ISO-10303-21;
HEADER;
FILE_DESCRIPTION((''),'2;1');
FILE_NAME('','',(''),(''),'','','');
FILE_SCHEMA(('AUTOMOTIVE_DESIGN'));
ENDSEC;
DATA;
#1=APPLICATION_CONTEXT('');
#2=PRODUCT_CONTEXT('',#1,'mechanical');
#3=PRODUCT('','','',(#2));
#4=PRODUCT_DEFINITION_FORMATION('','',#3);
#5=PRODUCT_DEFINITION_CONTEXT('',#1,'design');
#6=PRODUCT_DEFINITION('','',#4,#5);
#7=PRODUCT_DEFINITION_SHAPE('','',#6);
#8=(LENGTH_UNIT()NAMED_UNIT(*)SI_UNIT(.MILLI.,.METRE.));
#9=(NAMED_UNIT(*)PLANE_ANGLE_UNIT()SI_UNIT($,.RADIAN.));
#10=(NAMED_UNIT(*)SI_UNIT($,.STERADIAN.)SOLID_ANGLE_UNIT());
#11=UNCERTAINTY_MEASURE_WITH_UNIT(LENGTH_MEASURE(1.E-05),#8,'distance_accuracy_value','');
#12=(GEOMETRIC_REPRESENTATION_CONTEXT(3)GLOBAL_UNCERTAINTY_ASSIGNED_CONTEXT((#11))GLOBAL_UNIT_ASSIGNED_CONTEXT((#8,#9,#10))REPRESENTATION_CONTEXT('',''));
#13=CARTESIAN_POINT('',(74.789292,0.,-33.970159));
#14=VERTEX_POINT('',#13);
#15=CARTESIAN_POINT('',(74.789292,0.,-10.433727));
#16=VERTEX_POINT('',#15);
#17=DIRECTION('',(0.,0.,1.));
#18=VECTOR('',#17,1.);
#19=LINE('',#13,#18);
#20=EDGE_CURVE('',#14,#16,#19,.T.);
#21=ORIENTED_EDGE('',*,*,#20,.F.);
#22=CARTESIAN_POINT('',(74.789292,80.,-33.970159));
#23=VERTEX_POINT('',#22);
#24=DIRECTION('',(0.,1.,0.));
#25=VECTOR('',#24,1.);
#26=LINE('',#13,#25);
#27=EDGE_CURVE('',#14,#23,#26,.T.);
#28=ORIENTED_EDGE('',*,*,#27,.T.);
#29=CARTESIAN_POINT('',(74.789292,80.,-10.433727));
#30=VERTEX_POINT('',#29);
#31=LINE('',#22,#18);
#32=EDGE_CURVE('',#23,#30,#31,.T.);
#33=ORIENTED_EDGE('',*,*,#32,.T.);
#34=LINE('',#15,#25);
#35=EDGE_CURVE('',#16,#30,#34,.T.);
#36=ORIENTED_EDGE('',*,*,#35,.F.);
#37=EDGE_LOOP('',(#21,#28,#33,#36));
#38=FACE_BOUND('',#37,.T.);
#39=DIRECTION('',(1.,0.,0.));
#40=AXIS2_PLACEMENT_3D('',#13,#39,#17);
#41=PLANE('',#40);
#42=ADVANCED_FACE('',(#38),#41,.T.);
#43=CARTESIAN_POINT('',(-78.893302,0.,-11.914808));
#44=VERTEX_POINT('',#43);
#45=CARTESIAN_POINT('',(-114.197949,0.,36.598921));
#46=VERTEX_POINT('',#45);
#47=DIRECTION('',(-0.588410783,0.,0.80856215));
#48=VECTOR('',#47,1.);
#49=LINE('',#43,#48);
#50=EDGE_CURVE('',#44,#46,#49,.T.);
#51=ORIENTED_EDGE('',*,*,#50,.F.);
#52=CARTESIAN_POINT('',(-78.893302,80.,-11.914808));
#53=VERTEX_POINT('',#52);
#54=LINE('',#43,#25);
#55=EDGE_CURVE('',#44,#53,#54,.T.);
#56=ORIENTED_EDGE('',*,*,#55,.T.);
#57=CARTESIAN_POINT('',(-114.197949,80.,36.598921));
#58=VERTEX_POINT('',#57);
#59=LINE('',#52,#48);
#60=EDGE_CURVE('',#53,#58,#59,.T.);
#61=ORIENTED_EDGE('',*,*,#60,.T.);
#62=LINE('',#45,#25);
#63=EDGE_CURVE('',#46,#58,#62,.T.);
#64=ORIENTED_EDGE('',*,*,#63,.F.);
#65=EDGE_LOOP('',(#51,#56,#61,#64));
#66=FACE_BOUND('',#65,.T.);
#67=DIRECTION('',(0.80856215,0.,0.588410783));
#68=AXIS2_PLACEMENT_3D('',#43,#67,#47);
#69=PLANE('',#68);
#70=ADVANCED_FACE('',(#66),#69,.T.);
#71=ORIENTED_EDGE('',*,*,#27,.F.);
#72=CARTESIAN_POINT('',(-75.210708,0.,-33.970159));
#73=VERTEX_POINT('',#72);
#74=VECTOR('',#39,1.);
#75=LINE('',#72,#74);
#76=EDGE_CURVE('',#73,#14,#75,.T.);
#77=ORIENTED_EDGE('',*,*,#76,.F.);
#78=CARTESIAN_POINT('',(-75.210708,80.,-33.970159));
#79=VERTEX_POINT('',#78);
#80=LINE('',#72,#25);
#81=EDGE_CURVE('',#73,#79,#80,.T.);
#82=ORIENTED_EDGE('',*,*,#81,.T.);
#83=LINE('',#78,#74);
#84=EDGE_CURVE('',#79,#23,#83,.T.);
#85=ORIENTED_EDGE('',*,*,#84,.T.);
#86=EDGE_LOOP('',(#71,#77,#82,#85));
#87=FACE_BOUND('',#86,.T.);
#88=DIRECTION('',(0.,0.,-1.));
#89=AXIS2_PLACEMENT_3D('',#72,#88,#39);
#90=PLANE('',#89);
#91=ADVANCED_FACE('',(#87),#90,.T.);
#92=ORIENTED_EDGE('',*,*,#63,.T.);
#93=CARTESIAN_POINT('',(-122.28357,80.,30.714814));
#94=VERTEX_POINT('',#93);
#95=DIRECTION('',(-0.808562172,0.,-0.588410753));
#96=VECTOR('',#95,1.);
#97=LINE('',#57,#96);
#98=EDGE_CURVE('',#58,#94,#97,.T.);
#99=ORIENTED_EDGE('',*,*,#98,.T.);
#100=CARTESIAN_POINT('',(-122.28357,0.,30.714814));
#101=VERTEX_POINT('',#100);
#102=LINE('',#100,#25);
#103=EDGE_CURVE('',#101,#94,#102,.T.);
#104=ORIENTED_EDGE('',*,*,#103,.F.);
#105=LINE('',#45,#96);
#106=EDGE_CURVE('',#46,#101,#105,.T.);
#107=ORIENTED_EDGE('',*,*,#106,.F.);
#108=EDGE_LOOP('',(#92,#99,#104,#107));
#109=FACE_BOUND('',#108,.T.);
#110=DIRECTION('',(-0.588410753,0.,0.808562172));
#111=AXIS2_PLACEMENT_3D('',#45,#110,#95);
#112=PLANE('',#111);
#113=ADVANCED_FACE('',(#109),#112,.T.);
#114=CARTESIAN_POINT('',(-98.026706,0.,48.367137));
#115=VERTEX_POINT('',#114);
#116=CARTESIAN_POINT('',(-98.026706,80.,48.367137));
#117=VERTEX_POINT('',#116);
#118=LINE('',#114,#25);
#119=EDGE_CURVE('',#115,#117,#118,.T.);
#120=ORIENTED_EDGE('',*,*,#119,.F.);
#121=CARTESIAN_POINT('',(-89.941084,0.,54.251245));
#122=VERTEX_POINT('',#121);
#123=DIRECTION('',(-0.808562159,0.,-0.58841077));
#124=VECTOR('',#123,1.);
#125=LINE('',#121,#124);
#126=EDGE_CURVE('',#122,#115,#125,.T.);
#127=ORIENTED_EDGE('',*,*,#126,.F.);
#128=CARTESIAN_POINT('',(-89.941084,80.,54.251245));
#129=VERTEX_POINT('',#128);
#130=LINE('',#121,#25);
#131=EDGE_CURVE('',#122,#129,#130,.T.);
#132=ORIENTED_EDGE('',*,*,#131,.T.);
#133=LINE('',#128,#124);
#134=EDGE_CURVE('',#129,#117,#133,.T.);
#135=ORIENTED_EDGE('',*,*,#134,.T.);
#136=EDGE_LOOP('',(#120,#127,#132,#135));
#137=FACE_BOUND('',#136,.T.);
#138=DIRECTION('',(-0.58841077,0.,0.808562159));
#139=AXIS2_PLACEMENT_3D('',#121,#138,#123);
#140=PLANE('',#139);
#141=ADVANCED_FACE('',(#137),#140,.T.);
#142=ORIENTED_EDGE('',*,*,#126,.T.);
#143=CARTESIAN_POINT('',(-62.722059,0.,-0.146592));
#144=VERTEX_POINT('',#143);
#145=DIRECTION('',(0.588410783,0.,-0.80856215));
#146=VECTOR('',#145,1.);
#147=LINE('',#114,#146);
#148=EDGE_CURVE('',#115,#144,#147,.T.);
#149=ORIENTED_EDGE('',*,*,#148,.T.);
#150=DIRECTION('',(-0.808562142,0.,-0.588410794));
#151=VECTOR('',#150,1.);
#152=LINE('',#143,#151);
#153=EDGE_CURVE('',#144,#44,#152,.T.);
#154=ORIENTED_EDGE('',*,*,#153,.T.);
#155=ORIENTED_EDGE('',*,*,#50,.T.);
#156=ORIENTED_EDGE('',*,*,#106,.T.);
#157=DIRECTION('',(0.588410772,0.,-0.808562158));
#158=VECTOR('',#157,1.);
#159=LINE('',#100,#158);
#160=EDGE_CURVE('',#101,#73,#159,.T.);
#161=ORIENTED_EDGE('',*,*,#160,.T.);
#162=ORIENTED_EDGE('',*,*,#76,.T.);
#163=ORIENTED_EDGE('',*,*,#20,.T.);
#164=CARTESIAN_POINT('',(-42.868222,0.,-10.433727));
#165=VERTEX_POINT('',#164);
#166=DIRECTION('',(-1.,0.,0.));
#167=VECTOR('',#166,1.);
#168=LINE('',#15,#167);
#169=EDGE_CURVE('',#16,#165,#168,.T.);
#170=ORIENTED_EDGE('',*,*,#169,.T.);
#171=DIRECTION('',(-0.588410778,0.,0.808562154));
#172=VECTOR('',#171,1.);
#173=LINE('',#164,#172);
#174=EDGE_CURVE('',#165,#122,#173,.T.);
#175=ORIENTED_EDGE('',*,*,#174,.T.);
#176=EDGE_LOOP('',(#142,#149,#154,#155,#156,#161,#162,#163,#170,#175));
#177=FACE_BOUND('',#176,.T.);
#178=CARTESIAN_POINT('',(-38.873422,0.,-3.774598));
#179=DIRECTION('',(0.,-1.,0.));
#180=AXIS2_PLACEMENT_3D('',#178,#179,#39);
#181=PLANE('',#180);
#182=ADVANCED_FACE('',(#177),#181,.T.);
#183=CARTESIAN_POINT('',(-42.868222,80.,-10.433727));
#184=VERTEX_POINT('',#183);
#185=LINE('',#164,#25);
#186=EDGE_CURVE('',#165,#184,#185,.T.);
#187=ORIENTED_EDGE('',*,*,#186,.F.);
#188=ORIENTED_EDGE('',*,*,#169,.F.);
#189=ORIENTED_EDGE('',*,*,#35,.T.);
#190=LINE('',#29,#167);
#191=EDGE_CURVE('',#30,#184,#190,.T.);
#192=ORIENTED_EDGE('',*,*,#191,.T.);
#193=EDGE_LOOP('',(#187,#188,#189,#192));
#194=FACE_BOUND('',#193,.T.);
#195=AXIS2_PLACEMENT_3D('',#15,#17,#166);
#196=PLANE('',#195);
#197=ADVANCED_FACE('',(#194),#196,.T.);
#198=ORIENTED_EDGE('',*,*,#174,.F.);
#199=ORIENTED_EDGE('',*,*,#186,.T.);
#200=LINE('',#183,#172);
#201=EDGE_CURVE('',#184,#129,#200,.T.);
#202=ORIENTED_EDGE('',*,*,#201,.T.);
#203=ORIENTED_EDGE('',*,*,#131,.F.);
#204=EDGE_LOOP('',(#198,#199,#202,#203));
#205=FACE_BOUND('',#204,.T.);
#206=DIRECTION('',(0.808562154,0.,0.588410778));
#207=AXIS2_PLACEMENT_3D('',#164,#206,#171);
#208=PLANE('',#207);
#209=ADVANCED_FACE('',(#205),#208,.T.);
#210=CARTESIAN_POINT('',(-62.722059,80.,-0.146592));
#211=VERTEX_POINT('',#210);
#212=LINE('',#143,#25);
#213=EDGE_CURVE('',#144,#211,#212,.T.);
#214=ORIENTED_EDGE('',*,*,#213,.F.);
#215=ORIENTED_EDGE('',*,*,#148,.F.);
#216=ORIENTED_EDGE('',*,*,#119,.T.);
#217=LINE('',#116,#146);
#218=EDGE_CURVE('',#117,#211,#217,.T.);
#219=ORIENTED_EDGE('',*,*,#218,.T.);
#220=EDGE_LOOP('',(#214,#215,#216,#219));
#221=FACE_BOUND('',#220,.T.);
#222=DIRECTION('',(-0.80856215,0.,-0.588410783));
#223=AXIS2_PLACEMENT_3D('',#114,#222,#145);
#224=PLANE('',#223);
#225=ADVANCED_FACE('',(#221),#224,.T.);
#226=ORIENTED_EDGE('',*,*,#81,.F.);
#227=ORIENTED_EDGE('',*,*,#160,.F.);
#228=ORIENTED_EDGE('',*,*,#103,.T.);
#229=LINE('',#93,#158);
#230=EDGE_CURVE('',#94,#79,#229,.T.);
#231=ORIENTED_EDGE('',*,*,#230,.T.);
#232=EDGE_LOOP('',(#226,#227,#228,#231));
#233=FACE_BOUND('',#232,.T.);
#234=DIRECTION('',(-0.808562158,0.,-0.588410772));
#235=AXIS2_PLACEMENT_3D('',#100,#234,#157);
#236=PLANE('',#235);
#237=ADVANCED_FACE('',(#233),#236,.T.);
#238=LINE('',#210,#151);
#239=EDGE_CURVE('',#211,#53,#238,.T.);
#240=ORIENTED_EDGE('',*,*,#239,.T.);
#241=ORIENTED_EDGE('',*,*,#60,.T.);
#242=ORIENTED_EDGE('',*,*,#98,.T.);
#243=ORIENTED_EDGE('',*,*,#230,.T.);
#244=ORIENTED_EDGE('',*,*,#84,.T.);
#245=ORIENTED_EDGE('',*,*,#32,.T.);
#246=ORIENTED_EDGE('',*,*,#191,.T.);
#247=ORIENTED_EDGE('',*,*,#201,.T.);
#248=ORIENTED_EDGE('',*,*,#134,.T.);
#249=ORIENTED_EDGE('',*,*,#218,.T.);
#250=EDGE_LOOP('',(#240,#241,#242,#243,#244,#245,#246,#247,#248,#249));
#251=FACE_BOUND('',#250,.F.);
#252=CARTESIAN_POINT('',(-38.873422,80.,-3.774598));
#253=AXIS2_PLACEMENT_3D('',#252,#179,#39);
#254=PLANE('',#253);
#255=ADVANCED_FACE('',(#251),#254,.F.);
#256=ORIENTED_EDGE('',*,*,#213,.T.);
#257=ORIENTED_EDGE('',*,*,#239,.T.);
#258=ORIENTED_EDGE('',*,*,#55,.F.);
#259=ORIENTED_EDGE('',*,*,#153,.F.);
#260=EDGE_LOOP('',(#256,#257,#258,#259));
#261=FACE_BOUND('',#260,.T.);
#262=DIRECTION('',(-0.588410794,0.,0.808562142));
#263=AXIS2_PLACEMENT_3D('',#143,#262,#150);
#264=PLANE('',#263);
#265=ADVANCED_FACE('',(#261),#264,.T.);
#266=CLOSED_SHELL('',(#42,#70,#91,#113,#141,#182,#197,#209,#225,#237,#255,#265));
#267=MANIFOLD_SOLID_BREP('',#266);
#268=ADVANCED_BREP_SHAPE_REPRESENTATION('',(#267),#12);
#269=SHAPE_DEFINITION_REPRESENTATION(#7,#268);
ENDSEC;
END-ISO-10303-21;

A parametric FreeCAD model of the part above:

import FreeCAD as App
import Part
import Sketcher

V = App.Vector

doc = App.newDocument("Part")
params = doc.addObject("Spreadsheet::Sheet", "Params")
for row, (alias, value) in enumerate([
    ("sketch1_width", "150 mm"),
    ("sketch1_length", "80 mm"),
    ("sketch1_length2", "10.000001 mm"),
    ("sketch1_length3", "60 mm"),
    ("sketch1_length4", "20 mm"),
    ("pad1_length", "80 mm"),
], start=1):
    params.set(f"A{row}", alias)
    params.set(f"B{row}", "=" + value)
    params.setAlias(f"B{row}", alias)

body = doc.addObject("PartDesign::Body", "Body")

# Sketch on XZ plane
sketch1 = body.newObject("Sketcher::SketchObject", "Sketch")
sketch1.AttachmentSupport = (doc.getObject("XZ_Plane"), [""])
sketch1.MapMode = "FlatFace"
sketch1.addGeometry(Part.LineSegment(V(-122.28357, 30.714814, 0), V(-75.210708, -33.970159, 0)), False)
sketch1.addGeometry(Part.LineSegment(V(-75.210708, -33.970159, 0), V(74.789292, -33.970159, 0)), False)
sketch1.addGeometry(Part.LineSegment(V(74.789292, -33.970159, 0), V(74.789292, -10.433727, 0)), False)
sketch1.addGeometry(Part.LineSegment(V(74.789292, -10.433727, 0), V(-42.868222, -10.433727, 0)), False)
sketch1.addGeometry(Part.LineSegment(V(-42.868222, -10.433727, 0), V(-89.941084, 54.251245, 0)), False)
sketch1.addGeometry(Part.LineSegment(V(-89.941084, 54.251245, 0), V(-98.026706, 48.367137, 0)), False)
sketch1.addGeometry(Part.LineSegment(V(-98.026706, 48.367137, 0), V(-62.722059, -0.146592, 0)), False)
sketch1.addGeometry(Part.LineSegment(V(-62.722059, -0.146592, 0), V(-78.893302, -11.914808, 0)), False)
sketch1.addGeometry(Part.LineSegment(V(-78.893302, -11.914808, 0), V(-114.197949, 36.598921, 0)), False)
sketch1.addGeometry(Part.LineSegment(V(-114.197949, 36.598921, 0), V(-122.28357, 30.714814, 0)), False)
sketch1.addConstraint(Sketcher.Constraint("Coincident", 0, 2, 1, 1))
sketch1.addConstraint(Sketcher.Constraint("Coincident", 1, 2, 2, 1))
sketch1.addConstraint(Sketcher.Constraint("Coincident", 2, 2, 3, 1))
sketch1.addConstraint(Sketcher.Constraint("Coincident", 3, 2, 4, 1))
sketch1.addConstraint(Sketcher.Constraint("Coincident", 4, 2, 5, 1))
sketch1.addConstraint(Sketcher.Constraint("Coincident", 5, 2, 6, 1))
sketch1.addConstraint(Sketcher.Constraint("Coincident", 6, 2, 7, 1))
sketch1.addConstraint(Sketcher.Constraint("Coincident", 7, 2, 8, 1))
sketch1.addConstraint(Sketcher.Constraint("Coincident", 8, 2, 9, 1))
sketch1.addConstraint(Sketcher.Constraint("Coincident", 9, 2, 0, 1))
sketch1.addConstraint(Sketcher.Constraint("Horizontal", 1))
sketch1.addConstraint(Sketcher.Constraint("Vertical", 2))
sketch1.addConstraint(Sketcher.Constraint("Horizontal", 3))
sketch1.addConstraint(Sketcher.Constraint("Parallel", 0, 4))
sketch1.addConstraint(Sketcher.Constraint("Perpendicular", 4, 5))
sketch1.addConstraint(Sketcher.Constraint("Perpendicular", 5, 6))
sketch1.addConstraint(Sketcher.Constraint("Perpendicular", 6, 7))
sketch1.addConstraint(Sketcher.Constraint("Perpendicular", 7, 8))
sketch1.addConstraint(Sketcher.Constraint("Perpendicular", 8, 9))
sketch1.addConstraint(Sketcher.Constraint("Equal", 0, 4))
sketch1.addConstraint(Sketcher.Constraint("Equal", 6, 8))
sketch1.addConstraint(Sketcher.Constraint("Equal", 5, 9))
sketch1.addConstraint(Sketcher.Constraint("DistanceX", 1, 1, 1, 2, 150.0))
sketch1.addConstraint(Sketcher.Constraint("Distance", 0, 80.0))
sketch1.addConstraint(Sketcher.Constraint("Distance", 5, 10.000001))
sketch1.addConstraint(Sketcher.Constraint("Distance", 6, 60.0))
sketch1.addConstraint(Sketcher.Constraint("Distance", 7, 20.0))
sketch1.addConstraint(Sketcher.Constraint("DistanceX", 5, 2, 0, 2, 22.815998))
sketch1.addConstraint(Sketcher.Constraint("DistanceY", 0, 2, -1, 1, 33.970159))
sketch1.addConstraint(Sketcher.Constraint("DistanceX", 6, 2, -1, 1, 62.722059))
sketch1.setExpression("Constraints[22]", "Params.sketch1_width")
sketch1.setExpression("Constraints[23]", "Params.sketch1_length")
sketch1.setExpression("Constraints[24]", "Params.sketch1_length2")
sketch1.setExpression("Constraints[25]", "Params.sketch1_length3")
sketch1.setExpression("Constraints[26]", "Params.sketch1_length4")
pad1 = body.newObject("PartDesign::Pad", "Pad")
pad1.Profile = sketch1
pad1.setExpression("Length", "Params.pad1_length")
pad1.Reversed = True

doc.recompute()
